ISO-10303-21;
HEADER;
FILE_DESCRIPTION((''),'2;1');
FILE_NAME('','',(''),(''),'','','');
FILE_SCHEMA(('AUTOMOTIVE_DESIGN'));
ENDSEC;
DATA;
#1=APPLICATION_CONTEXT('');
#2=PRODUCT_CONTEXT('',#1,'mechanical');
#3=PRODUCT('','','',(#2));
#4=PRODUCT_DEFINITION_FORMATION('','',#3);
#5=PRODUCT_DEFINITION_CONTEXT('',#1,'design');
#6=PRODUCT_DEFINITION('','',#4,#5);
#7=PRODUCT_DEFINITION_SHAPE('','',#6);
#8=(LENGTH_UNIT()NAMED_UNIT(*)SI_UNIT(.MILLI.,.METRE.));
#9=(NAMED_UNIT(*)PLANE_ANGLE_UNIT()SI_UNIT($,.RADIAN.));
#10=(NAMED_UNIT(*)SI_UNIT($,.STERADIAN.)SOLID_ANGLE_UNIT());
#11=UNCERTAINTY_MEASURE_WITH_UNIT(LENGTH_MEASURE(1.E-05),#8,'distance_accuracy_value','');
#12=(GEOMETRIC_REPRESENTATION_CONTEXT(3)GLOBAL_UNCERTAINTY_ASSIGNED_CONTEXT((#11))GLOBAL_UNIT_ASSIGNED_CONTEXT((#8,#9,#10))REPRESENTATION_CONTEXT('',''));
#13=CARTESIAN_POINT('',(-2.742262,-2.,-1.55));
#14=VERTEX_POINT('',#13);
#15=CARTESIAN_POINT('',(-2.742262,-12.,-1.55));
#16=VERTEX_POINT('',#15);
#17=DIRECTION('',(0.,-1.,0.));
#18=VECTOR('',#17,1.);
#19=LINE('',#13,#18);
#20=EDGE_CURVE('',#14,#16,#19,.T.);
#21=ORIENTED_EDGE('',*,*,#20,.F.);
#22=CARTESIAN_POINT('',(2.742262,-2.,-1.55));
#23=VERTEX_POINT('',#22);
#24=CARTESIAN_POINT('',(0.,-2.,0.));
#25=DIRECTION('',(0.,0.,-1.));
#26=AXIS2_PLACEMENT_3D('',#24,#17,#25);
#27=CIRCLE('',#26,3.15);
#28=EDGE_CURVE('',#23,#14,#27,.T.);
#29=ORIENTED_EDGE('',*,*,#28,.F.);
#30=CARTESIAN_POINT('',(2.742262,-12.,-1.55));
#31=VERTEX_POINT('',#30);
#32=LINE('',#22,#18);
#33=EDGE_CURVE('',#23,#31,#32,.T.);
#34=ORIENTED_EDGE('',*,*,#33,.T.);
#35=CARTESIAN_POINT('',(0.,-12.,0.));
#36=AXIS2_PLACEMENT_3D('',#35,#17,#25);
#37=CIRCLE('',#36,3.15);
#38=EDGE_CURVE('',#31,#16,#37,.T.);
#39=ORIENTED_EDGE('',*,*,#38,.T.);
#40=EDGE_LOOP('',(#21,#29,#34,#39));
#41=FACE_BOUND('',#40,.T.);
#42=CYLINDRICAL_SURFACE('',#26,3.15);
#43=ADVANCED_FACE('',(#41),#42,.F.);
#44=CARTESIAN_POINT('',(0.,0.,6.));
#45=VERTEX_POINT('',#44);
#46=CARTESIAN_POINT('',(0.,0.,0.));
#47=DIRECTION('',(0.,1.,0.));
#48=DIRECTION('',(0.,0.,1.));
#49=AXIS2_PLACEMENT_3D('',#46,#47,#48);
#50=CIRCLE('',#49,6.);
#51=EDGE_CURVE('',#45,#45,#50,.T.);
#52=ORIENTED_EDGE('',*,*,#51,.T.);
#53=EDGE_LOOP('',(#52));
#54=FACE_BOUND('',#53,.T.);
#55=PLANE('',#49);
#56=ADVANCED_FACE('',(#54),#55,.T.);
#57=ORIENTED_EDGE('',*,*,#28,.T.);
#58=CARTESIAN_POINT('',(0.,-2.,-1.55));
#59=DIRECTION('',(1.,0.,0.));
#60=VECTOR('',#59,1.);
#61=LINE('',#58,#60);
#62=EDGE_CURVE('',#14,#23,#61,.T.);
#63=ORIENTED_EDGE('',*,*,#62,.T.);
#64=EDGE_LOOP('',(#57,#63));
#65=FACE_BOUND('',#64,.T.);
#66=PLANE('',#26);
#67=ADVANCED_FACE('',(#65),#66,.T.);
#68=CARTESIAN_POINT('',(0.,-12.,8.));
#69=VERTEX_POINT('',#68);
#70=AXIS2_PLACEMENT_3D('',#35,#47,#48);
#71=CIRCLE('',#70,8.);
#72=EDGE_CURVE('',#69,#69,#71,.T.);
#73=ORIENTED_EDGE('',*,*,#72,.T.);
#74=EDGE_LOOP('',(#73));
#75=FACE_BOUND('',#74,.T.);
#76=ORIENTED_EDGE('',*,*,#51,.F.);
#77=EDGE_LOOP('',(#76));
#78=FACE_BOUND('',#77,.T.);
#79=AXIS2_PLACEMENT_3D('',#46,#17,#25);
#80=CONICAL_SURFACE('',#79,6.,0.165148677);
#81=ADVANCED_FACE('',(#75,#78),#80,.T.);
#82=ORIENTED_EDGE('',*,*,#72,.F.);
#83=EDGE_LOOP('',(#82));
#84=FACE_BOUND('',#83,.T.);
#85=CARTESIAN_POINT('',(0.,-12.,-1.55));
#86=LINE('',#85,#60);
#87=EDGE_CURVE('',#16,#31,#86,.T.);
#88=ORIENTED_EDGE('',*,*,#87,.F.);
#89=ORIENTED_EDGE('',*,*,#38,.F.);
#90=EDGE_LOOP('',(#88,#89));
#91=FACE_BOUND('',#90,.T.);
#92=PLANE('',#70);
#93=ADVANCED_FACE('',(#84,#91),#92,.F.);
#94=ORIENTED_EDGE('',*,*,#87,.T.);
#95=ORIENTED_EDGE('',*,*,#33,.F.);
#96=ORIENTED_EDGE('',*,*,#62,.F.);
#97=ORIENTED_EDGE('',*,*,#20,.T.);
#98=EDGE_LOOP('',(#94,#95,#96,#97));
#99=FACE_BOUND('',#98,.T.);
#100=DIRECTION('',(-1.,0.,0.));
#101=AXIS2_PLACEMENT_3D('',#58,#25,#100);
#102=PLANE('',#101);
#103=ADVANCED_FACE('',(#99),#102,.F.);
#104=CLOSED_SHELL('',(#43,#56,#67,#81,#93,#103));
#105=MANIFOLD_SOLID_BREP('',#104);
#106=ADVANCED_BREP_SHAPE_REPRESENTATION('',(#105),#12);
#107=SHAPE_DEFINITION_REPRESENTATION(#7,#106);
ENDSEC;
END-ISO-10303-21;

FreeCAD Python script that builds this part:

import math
import FreeCAD as App
import Part
import Sketcher

V = App.Vector
Q = App.Units.Quantity

doc = App.newDocument("Part")
body = doc.addObject("PartDesign::Body", "Body")

sketch1 = doc.addObject("Sketcher::SketchObject", "Sketch")
body.addObject(sketch1)
sketch1.AttachmentSupport = (doc.XZ_Plane, [""])
sketch1.MapMode = "FlatFace"
sketch1.addGeometry(Part.Circle(V(0, 0, 0), V(0, 0, 1), 6), False)
sketch1.addConstraint([
    Sketcher.Constraint("Coincident", 0, 3, -1, 1),
    Sketcher.Constraint("Diameter", 0, Q("12 mm")),
])

sketch2 = doc.addObject("Sketcher::SketchObject", "Sketch001")
body.addObject(sketch2)
sketch2.AttachmentSupport = (doc.XZ_Plane, [""])
sketch2.MapMode = "FlatFace"
sketch2.AttachmentOffset = App.Placement(V(0, 0, 12), App.Rotation())
sketch2.addGeometry(Part.Circle(V(0, 0, 0), V(0, 0, 1), 8), False)
sketch2.addConstraint([
    Sketcher.Constraint("Coincident", 0, 3, -1, 1),
    Sketcher.Constraint("Diameter", 0, Q("16 mm")),
])

additiveloft = doc.addObject("PartDesign::AdditiveLoft", "AdditiveLoft")
body.addObject(additiveloft)
additiveloft.Profile = sketch1
additiveloft.Sections = [sketch2]

sketch3 = doc.addObject("Sketcher::SketchObject", "Sketch002")
body.addObject(sketch3)
sketch3.AttachmentSupport = (doc.XZ_Plane, [""])
sketch3.MapMode = "FlatFace"
sketch3.AttachmentOffset = App.Placement(V(0, 0, 12), App.Rotation())
sketch3.addGeometry([
    Part.ArcOfCircle(Part.Circle(V(0, 0, 0), V(0, 0, 1), 3.1), math.radians(0), math.radians(209)),
    Part.LineSegment(V(-2.7, -1.6, 0), V(2.7, -1.6, 0)),
    Part.ArcOfCircle(Part.Circle(V(0, 0, 0), V(0, 0, 1), 3.1), math.radians(-29), math.radians(0)),
], False)
sketch3.addConstraint([
    Sketcher.Constraint("Coincident", 0, 2, 1, 1),
    Sketcher.Constraint("Coincident", 1, 2, 2, 1),
    Sketcher.Constraint("Tangent", 2, 2, 0, 1),
    Sketcher.Constraint("Horizontal", 1),
    Sketcher.Constraint("Coincident", 0, 3, -1, 1),
    Sketcher.Constraint("Equal", 0, 2),
    Sketcher.Constraint("PointOnObject", 2, 2, -1),
    Sketcher.Constraint("Radius", 0, Q("3.15 mm")),
    Sketcher.Constraint("DistanceY", 0, 2, -1, 1, Q("1.55 mm")),
])
pocket1 = doc.addObject("PartDesign::Pocket", "Pocket")
body.addObject(pocket1)
pocket1.Profile = sketch3
pocket1.Length = 10

doc.recompute()
